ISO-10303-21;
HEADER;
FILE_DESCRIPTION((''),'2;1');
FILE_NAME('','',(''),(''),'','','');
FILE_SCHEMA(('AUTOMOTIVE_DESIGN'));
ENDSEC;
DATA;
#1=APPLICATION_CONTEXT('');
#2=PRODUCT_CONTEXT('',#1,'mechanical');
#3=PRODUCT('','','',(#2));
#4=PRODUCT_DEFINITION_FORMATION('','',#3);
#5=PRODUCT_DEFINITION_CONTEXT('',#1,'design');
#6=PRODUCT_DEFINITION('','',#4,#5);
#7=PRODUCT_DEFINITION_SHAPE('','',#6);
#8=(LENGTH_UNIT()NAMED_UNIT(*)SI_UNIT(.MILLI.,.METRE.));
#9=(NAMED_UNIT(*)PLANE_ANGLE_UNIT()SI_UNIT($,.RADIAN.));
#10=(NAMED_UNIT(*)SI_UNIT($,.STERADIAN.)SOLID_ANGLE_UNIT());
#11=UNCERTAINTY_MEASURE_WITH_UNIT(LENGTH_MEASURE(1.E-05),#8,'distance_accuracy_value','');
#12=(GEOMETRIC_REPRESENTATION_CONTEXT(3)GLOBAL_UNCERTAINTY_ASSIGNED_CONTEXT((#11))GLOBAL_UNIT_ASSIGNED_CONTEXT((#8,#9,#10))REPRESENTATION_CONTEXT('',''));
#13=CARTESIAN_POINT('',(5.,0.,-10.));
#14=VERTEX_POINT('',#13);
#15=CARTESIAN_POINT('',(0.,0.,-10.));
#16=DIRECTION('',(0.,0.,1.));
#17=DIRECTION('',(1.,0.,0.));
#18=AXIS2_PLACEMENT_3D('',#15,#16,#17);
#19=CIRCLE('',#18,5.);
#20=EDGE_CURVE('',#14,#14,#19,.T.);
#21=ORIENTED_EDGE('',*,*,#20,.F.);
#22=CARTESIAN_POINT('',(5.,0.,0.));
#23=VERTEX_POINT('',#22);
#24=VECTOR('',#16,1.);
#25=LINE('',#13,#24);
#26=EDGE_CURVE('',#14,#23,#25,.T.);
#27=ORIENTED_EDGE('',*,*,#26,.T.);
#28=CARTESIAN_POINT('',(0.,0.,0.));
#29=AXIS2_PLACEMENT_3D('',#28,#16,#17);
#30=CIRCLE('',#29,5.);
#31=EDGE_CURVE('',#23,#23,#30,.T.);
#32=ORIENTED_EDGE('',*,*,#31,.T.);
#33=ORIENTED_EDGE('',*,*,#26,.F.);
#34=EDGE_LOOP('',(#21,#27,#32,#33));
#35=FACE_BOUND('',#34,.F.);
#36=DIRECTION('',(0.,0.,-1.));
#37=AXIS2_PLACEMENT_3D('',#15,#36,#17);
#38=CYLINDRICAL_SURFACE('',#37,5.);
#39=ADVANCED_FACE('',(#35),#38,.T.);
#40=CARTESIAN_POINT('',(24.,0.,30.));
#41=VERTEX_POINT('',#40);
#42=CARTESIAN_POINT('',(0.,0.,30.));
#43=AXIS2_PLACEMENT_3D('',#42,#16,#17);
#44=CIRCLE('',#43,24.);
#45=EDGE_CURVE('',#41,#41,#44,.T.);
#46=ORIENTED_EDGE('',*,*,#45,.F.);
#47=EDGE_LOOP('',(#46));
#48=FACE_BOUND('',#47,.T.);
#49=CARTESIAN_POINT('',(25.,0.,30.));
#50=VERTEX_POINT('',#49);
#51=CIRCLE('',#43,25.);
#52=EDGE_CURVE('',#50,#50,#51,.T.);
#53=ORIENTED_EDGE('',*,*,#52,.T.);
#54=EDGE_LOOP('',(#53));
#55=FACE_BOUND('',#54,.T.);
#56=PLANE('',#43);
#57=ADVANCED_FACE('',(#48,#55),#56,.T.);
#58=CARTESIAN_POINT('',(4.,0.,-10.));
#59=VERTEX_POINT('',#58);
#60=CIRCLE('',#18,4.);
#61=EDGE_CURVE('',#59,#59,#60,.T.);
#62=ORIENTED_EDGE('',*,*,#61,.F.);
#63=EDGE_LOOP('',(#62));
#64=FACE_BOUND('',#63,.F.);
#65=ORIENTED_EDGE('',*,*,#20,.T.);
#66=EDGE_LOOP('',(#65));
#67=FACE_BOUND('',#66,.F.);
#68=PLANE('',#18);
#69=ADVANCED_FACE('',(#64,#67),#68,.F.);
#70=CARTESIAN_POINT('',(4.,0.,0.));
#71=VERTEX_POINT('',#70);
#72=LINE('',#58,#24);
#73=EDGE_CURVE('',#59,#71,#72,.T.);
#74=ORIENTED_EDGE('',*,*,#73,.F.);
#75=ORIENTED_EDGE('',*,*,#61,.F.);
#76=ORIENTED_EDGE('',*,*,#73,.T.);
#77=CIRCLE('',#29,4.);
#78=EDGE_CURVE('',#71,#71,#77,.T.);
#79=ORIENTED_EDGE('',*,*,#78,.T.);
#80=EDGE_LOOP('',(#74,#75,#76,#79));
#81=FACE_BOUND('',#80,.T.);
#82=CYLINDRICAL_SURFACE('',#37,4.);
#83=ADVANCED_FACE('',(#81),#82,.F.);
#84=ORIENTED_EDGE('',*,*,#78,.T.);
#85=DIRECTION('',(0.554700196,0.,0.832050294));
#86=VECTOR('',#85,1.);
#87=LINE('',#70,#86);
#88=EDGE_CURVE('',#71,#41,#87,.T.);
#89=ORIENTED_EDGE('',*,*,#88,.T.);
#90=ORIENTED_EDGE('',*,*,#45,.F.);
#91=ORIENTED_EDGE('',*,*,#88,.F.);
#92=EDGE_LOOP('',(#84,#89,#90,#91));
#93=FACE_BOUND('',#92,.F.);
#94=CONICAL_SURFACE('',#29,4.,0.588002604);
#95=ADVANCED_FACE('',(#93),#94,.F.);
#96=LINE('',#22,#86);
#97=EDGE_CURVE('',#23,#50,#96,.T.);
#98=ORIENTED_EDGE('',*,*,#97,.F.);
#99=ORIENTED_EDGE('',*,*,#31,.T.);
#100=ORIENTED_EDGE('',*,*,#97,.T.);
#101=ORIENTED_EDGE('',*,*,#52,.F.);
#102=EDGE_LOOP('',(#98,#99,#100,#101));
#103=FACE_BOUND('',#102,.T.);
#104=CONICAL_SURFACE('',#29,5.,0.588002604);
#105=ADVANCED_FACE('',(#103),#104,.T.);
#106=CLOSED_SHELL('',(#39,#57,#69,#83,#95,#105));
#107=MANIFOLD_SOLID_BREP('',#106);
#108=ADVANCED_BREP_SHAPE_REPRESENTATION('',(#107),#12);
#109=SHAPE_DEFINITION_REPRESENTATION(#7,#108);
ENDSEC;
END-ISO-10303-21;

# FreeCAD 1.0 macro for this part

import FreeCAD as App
import Part
import Sketcher
from FreeCAD import Vector

doc = App.newDocument("Part")
body = doc.addObject("PartDesign::Body", "Body")

# Sketch on XZ plane
sketch1 = body.newObject("Sketcher::SketchObject", "Sketch")
sketch1.AttachmentSupport = (doc.getObject("XZ_Plane"), [""])
sketch1.MapMode = "FlatFace"
sketch1.addGeometry(Part.LineSegment(Vector(0, 0, 0), Vector(4, 0, 0)), False)
sketch1.addGeometry(Part.LineSegment(Vector(4, 0, 0), Vector(24, 30, 0)), False)
sketch1.addGeometry(Part.LineSegment(Vector(24, 30, 0), Vector(0, 30, 0)), False)
sketch1.addGeometry(Part.LineSegment(Vector(0, 30, 0), Vector(0, 0, 0)), False)
sketch1.addConstraint(Sketcher.Constraint("Coincident", 0, 2, 1, 1))
sketch1.addConstraint(Sketcher.Constraint("Coincident", 1, 2, 2, 1))
sketch1.addConstraint(Sketcher.Constraint("Coincident", 2, 2, 3, 1))
sketch1.addConstraint(Sketcher.Constraint("Coincident", 3, 2, 0, 1))
sketch1.addConstraint(Sketcher.Constraint("Horizontal", 0))
sketch1.addConstraint(Sketcher.Constraint("Horizontal", 2))
sketch1.addConstraint(Sketcher.Constraint("Vertical", 3))
sketch1.addConstraint(Sketcher.Constraint("Coincident", 3, 2, -1, 1))
sketch1.addConstraint(Sketcher.Constraint("DistanceX", 0, 1, 0, 2, 4.0))
sketch1.addConstraint(Sketcher.Constraint("DistanceX", 2, 2, 2, 1, 24.0))
sketch1.addConstraint(Sketcher.Constraint("DistanceY", 3, 2, 3, 1, 30.0))
revolution = body.newObject("PartDesign::Revolution", "Revolution")
revolution.Profile = sketch1
revolution.ReferenceAxis = (sketch1, ["V_Axis"])
revolution.Angle = 360
body2 = doc.addObject("PartDesign::Body", "Body001")

# Sketch on XZ plane
sketch2 = body2.newObject("Sketcher::SketchObject", "Sketch001")
sketch2.AttachmentSupport = (doc.getObject("XZ_Plane001"), [""])
sketch2.MapMode = "FlatFace"
sketch2.addGeometry(Part.LineSegment(Vector(0, 0, 0), Vector(5, 0, 0)), False)
sketch2.addGeometry(Part.LineSegment(Vector(5, 0, 0), Vector(25, 30, 0)), False)
sketch2.addGeometry(Part.LineSegment(Vector(25, 30, 0), Vector(0, 30, 0)), False)
sketch2.addGeometry(Part.LineSegment(Vector(0, 30, 0), Vector(0, 0, 0)), False)
sketch2.addConstraint(Sketcher.Constraint("Coincident", 0, 2, 1, 1))
sketch2.addConstraint(Sketcher.Constraint("Coincident", 1, 2, 2, 1))
sketch2.addConstraint(Sketcher.Constraint("Coincident", 2, 2, 3, 1))
sketch2.addConstraint(Sketcher.Constraint("Coincident", 3, 2, 0, 1))
sketch2.addConstraint(Sketcher.Constraint("Horizontal", 0))
sketch2.addConstraint(Sketcher.Constraint("Horizontal", 2))
sketch2.addConstraint(Sketcher.Constraint("Vertical", 3))
sketch2.addConstraint(Sketcher.Constraint("Coincident", 3, 2, -1, 1))
sketch2.addConstraint(Sketcher.Constraint("DistanceX", 0, 1, 0, 2, 5.0))
sketch2.addConstraint(Sketcher.Constraint("DistanceX", 2, 2, 2, 1, 25.0))
sketch2.addConstraint(Sketcher.Constraint("DistanceY", 3, 2, 3, 1, 30.0))
revolution2 = body2.newObject("PartDesign::Revolution", "Revolution001")
revolution2.Profile = sketch2
revolution2.ReferenceAxis = (sketch2, ["V_Axis"])
revolution2.Angle = 360
doc.recompute()

boolean = body2.newObject("PartDesign::Boolean", "Boolean")
boolean.Type = "Cut"
boolean.addObjects([body])
body3 = doc.addObject("PartDesign::Body", "Body002")

# Sketch on XY plane
sketch3 = body3.newObject("Sketcher::SketchObject", "Sketch002")
sketch3.AttachmentSupport = (doc.getObject("XY_Plane002"), [""])
sketch3.MapMode = "FlatFace"
sketch3.AttachmentOffset = App.Placement(Vector(0, 0, -10), App.Rotation())
sketch3.addGeometry(Part.Circle(Vector(0, 0, 0), Vector(0, 0, 1), 4), False)
sketch3.addConstraint(Sketcher.Constraint("Coincident", 0, 3, -1, 1))
sketch3.addConstraint(Sketcher.Constraint("Diameter", 0, 8.0))
pad1 = body3.newObject("PartDesign::Pad", "Pad")
pad1.Profile = sketch3
pad1.Length = 10
body4 = doc.addObject("PartDesign::Body", "Body003")

# Sketch on XY plane
sketch4 = body4.newObject("Sketcher::SketchObject", "Sketch003")
sketch4.AttachmentSupport = (doc.getObject("XY_Plane003"), [""])
sketch4.MapMode = "FlatFace"
sketch4.AttachmentOffset = App.Placement(Vector(0, 0, -10), App.Rotation())
sketch4.addGeometry(Part.Circle(Vector(0, 0, 0), Vector(0, 0, 1), 5), False)
sketch4.addConstraint(Sketcher.Constraint("Coincident", 0, 3, -1, 1))
sketch4.addConstraint(Sketcher.Constraint("Diameter", 0, 10.0))
pad2 = body4.newObject("PartDesign::Pad", "Pad001")
pad2.Profile = sketch4
pad2.Length = 10
doc.recompute()

boolean2 = body4.newObject("PartDesign::Boolean", "Boolean001")
boolean2.Type = "Cut"
boolean2.addObjects([body3])
doc.recompute()

boolean3 = body4.newObject("PartDesign::Boolean", "Boolean002")
boolean3.Type = "Fuse"
boolean3.addObjects([body2])

doc.recompute()
